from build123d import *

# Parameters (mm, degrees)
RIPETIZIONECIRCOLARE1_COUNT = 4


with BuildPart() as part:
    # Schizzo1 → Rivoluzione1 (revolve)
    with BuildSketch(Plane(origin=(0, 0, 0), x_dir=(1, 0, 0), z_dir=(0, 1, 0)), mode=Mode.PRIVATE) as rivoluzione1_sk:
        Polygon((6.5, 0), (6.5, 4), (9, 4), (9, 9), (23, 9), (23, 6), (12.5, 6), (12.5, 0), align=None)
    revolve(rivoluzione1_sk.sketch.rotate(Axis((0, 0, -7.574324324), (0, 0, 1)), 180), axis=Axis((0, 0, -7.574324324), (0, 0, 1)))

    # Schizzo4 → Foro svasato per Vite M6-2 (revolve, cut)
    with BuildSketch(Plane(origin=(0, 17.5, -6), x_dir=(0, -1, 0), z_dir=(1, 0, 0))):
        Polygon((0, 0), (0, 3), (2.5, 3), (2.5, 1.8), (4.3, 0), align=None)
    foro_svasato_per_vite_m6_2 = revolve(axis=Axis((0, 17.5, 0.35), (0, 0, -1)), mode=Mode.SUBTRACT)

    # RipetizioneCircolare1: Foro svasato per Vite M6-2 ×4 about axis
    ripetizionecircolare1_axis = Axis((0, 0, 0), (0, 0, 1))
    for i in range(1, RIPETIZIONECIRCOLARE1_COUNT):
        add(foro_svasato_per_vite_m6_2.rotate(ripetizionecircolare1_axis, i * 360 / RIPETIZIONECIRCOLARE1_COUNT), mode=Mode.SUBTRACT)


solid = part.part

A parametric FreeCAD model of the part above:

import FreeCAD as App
import Part
import Sketcher
Q = App.Units.Quantity

doc = App.newDocument("Part")
body = doc.addObject("PartDesign::Body", "Body")

# Sketch on XZ plane
sketch1 = doc.addObject("Sketcher::SketchObject", "Sketch")
body.addObject(sketch1)
sketch1.AttachmentSupport = (doc.XZ_Plane, [""])
sketch1.MapMode = "FlatFace"
sketch1.addGeometry([
    Part.LineSegment(App.Vector(6.5, -4, 0), App.Vector(6.5, 0, 0)),  # 0
    Part.LineSegment(App.Vector(6.5, 0, 0), App.Vector(12.5, 0, 0)),  # 1
    Part.LineSegment(App.Vector(12.5, 0, 0), App.Vector(12.5, -6, 0)),  # 2
    Part.LineSegment(App.Vector(12.5, -6, 0), App.Vector(23, -6, 0)),  # 3
    Part.LineSegment(App.Vector(23, -6, 0), App.Vector(23, -9, 0)),  # 4
    Part.LineSegment(App.Vector(23, -9, 0), App.Vector(9, -9, 0)),  # 5
    Part.LineSegment(App.Vector(9, -9, 0), App.Vector(9, -4, 0)),  # 6
    Part.LineSegment(App.Vector(9, -4, 0), App.Vector(6.5, -4, 0)),  # 7
], False)
sketch1.addConstraint([
    Sketcher.Constraint("Coincident", 0, 2, 1, 1),
    Sketcher.Constraint("Coincident", 1, 2, 2, 1),
    Sketcher.Constraint("Coincident", 2, 2, 3, 1),
    Sketcher.Constraint("Coincident", 3, 2, 4, 1),
    Sketcher.Constraint("Coincident", 4, 2, 5, 1),
    Sketcher.Constraint("Coincident", 5, 2, 6, 1),
    Sketcher.Constraint("Coincident", 6, 2, 7, 1),
    Sketcher.Constraint("Coincident", 7, 2, 0, 1),
    Sketcher.Constraint("Vertical", 0),
    Sketcher.Constraint("Horizontal", 1),
    Sketcher.Constraint("Vertical", 2),
    Sketcher.Constraint("Horizontal", 3),
    Sketcher.Constraint("Vertical", 4),
    Sketcher.Constraint("Horizontal", 5),
    Sketcher.Constraint("Vertical", 6),
    Sketcher.Constraint("Horizontal", 7),
    Sketcher.Constraint("PointOnObject", 0, 2, -1),
    Sketcher.Constraint("Equal", 1, 2),
    Sketcher.Constraint("DistanceX", 1, 1, 1, 2, Q("6 mm")),
    Sketcher.Constraint("DistanceX", 5, 2, 5, 1, Q("14 mm")),
    Sketcher.Constraint("DistanceY", 0, 1, 0, 2, Q("4 mm")),
    Sketcher.Constraint("DistanceY", 4, 2, 4, 1, Q("3 mm")),
    Sketcher.Constraint("DistanceX", 3, 1, 3, 2, Q("10.5 mm")),
    Sketcher.Constraint("DistanceX", -1, 1, 3, 2, Q("23 mm")),
])
revolution = doc.addObject("PartDesign::Revolution", "Revolution")
body.addObject(revolution)
revolution.Profile = sketch1
revolution.ReferenceAxis = (sketch1, ["V_Axis"])
revolution.Angle = 360

# Sketch on YZ plane
sketch2 = doc.addObject("Sketcher::SketchObject", "Sketch001")
body.addObject(sketch2)
sketch2.AttachmentSupport = (doc.YZ_Plane, [""])
sketch2.MapMode = "FlatFace"
sketch2.addGeometry([
    Part.LineSegment(App.Vector(17.5, -9, 0), App.Vector(17.5, -6, 0)),  # 0
    Part.LineSegment(App.Vector(17.5, -6, 0), App.Vector(13.2, -6, 0)),  # 1
    Part.LineSegment(App.Vector(13.2, -6, 0), App.Vector(15, -7.8, 0)),  # 2
    Part.LineSegment(App.Vector(15, -7.8, 0), App.Vector(15, -9, 0)),  # 3
    Part.LineSegment(App.Vector(15, -9, 0), App.Vector(17.5, -9, 0)),  # 4
], False)
sketch2.addGeometry(Part.LineSegment(App.Vector(17.5, -6, 0), App.Vector(17.5, -9, 0)), True)  # axis
sketch2.addConstraint([
    Sketcher.Constraint("Coincident", 0, 2, 1, 1),
    Sketcher.Constraint("Coincident", 1, 2, 2, 1),
    Sketcher.Constraint("Coincident", 2, 2, 3, 1),
    Sketcher.Constraint("Coincident", 3, 2, 4, 1),
    Sketcher.Constraint("Coincident", 4, 2, 0, 1),
    Sketcher.Constraint("Vertical", 0),
    Sketcher.Constraint("Horizontal", 1),
    Sketcher.Constraint("Vertical", 3),
    Sketcher.Constraint("Horizontal", 4),
    Sketcher.Constraint("Vertical", 5),
    Sketcher.Constraint("Coincident", 5, 1, 0, 2),
    Sketcher.Constraint("Horizontal", 3, 2, 5, 2),
    Sketcher.Constraint("DistanceY", 0, 1, 0, 2, Q("3 mm")),
    Sketcher.Constraint("Angle", 2, Q("-45 deg")),
    Sketcher.Constraint("DistanceX", 1, 2, 1, 1, Q("4.3 mm")),
    Sketcher.Constraint("DistanceX", 4, 1, 4, 2, Q("2.5 mm")),
    Sketcher.Constraint("DistanceY", 0, 2, -1, 1, Q("6 mm")),
    Sketcher.Constraint("DistanceX", -1, 1, 2, 2, Q("15 mm")),
])
groove = doc.addObject("PartDesign::Groove", "Groove")
body.addObject(groove)
groove.Profile = sketch2
groove.ReferenceAxis = (sketch2, ["Axis0"])
groove.Angle = 360
doc.recompute()

polarpattern = doc.addObject("PartDesign::PolarPattern", "PolarPattern")
body.addObject(polarpattern)
polarpattern.Originals = [groove]
polarpattern.Axis = (doc.Z_Axis, [""])
polarpattern.Angle = 360
polarpattern.Occurrences = 4
body.Tip = polarpattern

doc.recompute()
